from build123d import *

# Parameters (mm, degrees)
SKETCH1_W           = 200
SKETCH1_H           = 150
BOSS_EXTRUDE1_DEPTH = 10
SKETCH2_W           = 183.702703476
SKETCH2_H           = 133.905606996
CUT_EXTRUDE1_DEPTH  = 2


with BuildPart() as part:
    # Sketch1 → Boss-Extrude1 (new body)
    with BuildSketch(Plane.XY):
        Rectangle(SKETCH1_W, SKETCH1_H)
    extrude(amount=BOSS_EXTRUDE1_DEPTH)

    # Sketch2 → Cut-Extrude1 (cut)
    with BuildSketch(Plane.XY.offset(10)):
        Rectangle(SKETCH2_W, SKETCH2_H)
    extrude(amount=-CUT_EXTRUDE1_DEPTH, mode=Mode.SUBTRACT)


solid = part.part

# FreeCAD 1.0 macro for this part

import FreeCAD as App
import Part
import Sketcher

V = App.Vector


def add_polygon(sketch, points):
    """Adds a closed chain of lines whose ends are joined by coincident constraints."""
    first, n = sketch.GeometryCount, len(points)
    for a, b in zip(points, points[1:] + points[:1]):
        sketch.addGeometry(Part.LineSegment(App.Vector(*a, 0), App.Vector(*b, 0)), False)
    for i in range(n):
        sketch.addConstraint(Sketcher.Constraint("Coincident", first + i, 2, first + (i + 1) % n, 1))

doc = App.newDocument("Part")
body = doc.addObject("PartDesign::Body", "Body")

# Sketch on XY plane
sketch1 = doc.addObject("Sketcher::SketchObject", "Sketch")
body.addObject(sketch1)
sketch1.AttachmentSupport = (doc.XY_Plane, [""])
sketch1.MapMode = "FlatFace"
add_polygon(sketch1, [(-100, 75), (-100, -75), (100, -75), (100, 75)])  # lines 0-3
sketch1.addConstraint(Sketcher.Constraint("Vertical", 0))
sketch1.addConstraint(Sketcher.Constraint("Horizontal", 1))
sketch1.addConstraint(Sketcher.Constraint("Vertical", 2))
sketch1.addConstraint(Sketcher.Constraint("Horizontal", 3))
sketch1.addConstraint(Sketcher.Constraint("Symmetric", 0, 2, 2, 2, -1, 1))
sketch1.addConstraint(Sketcher.Constraint("DistanceX", 1, 1, 1, 2, 200.0))
sketch1.addConstraint(Sketcher.Constraint("DistanceY", 0, 2, 0, 1, 150.0))
pad1 = doc.addObject("PartDesign::Pad", "Pad")
body.addObject(pad1)
pad1.Profile = sketch1
pad1.Length = 10

# Sketch on XY plane
sketch2 = doc.addObject("Sketcher::SketchObject", "Sketch001")
body.addObject(sketch2)
sketch2.AttachmentSupport = (doc.XY_Plane, [""])
sketch2.MapMode = "FlatFace"
sketch2.AttachmentOffset = App.Placement(V(0, 0, 10), App.Rotation())
add_polygon(sketch2, [(-92, 67), (-92, -67), (92, -67), (92, 67)])  # lines 0-3
sketch2.addConstraint(Sketcher.Constraint("Vertical", 0))
sketch2.addConstraint(Sketcher.Constraint("Horizontal", 1))
sketch2.addConstraint(Sketcher.Constraint("Vertical", 2))
sketch2.addConstraint(Sketcher.Constraint("Horizontal", 3))
sketch2.addConstraint(Sketcher.Constraint("Symmetric", 0, 2, 2, 2, -1, 1))
sketch2.addConstraint(Sketcher.Constraint("DistanceX", 1, 1, 1, 2, 183.702703))
sketch2.addConstraint(Sketcher.Constraint("DistanceY", 0, 2, 0, 1, 133.905607))
pocket1 = doc.addObject("PartDesign::Pocket", "Pocket")
body.addObject(pocket1)
pocket1.Profile = sketch2
pocket1.Length = 2

doc.recompute()
